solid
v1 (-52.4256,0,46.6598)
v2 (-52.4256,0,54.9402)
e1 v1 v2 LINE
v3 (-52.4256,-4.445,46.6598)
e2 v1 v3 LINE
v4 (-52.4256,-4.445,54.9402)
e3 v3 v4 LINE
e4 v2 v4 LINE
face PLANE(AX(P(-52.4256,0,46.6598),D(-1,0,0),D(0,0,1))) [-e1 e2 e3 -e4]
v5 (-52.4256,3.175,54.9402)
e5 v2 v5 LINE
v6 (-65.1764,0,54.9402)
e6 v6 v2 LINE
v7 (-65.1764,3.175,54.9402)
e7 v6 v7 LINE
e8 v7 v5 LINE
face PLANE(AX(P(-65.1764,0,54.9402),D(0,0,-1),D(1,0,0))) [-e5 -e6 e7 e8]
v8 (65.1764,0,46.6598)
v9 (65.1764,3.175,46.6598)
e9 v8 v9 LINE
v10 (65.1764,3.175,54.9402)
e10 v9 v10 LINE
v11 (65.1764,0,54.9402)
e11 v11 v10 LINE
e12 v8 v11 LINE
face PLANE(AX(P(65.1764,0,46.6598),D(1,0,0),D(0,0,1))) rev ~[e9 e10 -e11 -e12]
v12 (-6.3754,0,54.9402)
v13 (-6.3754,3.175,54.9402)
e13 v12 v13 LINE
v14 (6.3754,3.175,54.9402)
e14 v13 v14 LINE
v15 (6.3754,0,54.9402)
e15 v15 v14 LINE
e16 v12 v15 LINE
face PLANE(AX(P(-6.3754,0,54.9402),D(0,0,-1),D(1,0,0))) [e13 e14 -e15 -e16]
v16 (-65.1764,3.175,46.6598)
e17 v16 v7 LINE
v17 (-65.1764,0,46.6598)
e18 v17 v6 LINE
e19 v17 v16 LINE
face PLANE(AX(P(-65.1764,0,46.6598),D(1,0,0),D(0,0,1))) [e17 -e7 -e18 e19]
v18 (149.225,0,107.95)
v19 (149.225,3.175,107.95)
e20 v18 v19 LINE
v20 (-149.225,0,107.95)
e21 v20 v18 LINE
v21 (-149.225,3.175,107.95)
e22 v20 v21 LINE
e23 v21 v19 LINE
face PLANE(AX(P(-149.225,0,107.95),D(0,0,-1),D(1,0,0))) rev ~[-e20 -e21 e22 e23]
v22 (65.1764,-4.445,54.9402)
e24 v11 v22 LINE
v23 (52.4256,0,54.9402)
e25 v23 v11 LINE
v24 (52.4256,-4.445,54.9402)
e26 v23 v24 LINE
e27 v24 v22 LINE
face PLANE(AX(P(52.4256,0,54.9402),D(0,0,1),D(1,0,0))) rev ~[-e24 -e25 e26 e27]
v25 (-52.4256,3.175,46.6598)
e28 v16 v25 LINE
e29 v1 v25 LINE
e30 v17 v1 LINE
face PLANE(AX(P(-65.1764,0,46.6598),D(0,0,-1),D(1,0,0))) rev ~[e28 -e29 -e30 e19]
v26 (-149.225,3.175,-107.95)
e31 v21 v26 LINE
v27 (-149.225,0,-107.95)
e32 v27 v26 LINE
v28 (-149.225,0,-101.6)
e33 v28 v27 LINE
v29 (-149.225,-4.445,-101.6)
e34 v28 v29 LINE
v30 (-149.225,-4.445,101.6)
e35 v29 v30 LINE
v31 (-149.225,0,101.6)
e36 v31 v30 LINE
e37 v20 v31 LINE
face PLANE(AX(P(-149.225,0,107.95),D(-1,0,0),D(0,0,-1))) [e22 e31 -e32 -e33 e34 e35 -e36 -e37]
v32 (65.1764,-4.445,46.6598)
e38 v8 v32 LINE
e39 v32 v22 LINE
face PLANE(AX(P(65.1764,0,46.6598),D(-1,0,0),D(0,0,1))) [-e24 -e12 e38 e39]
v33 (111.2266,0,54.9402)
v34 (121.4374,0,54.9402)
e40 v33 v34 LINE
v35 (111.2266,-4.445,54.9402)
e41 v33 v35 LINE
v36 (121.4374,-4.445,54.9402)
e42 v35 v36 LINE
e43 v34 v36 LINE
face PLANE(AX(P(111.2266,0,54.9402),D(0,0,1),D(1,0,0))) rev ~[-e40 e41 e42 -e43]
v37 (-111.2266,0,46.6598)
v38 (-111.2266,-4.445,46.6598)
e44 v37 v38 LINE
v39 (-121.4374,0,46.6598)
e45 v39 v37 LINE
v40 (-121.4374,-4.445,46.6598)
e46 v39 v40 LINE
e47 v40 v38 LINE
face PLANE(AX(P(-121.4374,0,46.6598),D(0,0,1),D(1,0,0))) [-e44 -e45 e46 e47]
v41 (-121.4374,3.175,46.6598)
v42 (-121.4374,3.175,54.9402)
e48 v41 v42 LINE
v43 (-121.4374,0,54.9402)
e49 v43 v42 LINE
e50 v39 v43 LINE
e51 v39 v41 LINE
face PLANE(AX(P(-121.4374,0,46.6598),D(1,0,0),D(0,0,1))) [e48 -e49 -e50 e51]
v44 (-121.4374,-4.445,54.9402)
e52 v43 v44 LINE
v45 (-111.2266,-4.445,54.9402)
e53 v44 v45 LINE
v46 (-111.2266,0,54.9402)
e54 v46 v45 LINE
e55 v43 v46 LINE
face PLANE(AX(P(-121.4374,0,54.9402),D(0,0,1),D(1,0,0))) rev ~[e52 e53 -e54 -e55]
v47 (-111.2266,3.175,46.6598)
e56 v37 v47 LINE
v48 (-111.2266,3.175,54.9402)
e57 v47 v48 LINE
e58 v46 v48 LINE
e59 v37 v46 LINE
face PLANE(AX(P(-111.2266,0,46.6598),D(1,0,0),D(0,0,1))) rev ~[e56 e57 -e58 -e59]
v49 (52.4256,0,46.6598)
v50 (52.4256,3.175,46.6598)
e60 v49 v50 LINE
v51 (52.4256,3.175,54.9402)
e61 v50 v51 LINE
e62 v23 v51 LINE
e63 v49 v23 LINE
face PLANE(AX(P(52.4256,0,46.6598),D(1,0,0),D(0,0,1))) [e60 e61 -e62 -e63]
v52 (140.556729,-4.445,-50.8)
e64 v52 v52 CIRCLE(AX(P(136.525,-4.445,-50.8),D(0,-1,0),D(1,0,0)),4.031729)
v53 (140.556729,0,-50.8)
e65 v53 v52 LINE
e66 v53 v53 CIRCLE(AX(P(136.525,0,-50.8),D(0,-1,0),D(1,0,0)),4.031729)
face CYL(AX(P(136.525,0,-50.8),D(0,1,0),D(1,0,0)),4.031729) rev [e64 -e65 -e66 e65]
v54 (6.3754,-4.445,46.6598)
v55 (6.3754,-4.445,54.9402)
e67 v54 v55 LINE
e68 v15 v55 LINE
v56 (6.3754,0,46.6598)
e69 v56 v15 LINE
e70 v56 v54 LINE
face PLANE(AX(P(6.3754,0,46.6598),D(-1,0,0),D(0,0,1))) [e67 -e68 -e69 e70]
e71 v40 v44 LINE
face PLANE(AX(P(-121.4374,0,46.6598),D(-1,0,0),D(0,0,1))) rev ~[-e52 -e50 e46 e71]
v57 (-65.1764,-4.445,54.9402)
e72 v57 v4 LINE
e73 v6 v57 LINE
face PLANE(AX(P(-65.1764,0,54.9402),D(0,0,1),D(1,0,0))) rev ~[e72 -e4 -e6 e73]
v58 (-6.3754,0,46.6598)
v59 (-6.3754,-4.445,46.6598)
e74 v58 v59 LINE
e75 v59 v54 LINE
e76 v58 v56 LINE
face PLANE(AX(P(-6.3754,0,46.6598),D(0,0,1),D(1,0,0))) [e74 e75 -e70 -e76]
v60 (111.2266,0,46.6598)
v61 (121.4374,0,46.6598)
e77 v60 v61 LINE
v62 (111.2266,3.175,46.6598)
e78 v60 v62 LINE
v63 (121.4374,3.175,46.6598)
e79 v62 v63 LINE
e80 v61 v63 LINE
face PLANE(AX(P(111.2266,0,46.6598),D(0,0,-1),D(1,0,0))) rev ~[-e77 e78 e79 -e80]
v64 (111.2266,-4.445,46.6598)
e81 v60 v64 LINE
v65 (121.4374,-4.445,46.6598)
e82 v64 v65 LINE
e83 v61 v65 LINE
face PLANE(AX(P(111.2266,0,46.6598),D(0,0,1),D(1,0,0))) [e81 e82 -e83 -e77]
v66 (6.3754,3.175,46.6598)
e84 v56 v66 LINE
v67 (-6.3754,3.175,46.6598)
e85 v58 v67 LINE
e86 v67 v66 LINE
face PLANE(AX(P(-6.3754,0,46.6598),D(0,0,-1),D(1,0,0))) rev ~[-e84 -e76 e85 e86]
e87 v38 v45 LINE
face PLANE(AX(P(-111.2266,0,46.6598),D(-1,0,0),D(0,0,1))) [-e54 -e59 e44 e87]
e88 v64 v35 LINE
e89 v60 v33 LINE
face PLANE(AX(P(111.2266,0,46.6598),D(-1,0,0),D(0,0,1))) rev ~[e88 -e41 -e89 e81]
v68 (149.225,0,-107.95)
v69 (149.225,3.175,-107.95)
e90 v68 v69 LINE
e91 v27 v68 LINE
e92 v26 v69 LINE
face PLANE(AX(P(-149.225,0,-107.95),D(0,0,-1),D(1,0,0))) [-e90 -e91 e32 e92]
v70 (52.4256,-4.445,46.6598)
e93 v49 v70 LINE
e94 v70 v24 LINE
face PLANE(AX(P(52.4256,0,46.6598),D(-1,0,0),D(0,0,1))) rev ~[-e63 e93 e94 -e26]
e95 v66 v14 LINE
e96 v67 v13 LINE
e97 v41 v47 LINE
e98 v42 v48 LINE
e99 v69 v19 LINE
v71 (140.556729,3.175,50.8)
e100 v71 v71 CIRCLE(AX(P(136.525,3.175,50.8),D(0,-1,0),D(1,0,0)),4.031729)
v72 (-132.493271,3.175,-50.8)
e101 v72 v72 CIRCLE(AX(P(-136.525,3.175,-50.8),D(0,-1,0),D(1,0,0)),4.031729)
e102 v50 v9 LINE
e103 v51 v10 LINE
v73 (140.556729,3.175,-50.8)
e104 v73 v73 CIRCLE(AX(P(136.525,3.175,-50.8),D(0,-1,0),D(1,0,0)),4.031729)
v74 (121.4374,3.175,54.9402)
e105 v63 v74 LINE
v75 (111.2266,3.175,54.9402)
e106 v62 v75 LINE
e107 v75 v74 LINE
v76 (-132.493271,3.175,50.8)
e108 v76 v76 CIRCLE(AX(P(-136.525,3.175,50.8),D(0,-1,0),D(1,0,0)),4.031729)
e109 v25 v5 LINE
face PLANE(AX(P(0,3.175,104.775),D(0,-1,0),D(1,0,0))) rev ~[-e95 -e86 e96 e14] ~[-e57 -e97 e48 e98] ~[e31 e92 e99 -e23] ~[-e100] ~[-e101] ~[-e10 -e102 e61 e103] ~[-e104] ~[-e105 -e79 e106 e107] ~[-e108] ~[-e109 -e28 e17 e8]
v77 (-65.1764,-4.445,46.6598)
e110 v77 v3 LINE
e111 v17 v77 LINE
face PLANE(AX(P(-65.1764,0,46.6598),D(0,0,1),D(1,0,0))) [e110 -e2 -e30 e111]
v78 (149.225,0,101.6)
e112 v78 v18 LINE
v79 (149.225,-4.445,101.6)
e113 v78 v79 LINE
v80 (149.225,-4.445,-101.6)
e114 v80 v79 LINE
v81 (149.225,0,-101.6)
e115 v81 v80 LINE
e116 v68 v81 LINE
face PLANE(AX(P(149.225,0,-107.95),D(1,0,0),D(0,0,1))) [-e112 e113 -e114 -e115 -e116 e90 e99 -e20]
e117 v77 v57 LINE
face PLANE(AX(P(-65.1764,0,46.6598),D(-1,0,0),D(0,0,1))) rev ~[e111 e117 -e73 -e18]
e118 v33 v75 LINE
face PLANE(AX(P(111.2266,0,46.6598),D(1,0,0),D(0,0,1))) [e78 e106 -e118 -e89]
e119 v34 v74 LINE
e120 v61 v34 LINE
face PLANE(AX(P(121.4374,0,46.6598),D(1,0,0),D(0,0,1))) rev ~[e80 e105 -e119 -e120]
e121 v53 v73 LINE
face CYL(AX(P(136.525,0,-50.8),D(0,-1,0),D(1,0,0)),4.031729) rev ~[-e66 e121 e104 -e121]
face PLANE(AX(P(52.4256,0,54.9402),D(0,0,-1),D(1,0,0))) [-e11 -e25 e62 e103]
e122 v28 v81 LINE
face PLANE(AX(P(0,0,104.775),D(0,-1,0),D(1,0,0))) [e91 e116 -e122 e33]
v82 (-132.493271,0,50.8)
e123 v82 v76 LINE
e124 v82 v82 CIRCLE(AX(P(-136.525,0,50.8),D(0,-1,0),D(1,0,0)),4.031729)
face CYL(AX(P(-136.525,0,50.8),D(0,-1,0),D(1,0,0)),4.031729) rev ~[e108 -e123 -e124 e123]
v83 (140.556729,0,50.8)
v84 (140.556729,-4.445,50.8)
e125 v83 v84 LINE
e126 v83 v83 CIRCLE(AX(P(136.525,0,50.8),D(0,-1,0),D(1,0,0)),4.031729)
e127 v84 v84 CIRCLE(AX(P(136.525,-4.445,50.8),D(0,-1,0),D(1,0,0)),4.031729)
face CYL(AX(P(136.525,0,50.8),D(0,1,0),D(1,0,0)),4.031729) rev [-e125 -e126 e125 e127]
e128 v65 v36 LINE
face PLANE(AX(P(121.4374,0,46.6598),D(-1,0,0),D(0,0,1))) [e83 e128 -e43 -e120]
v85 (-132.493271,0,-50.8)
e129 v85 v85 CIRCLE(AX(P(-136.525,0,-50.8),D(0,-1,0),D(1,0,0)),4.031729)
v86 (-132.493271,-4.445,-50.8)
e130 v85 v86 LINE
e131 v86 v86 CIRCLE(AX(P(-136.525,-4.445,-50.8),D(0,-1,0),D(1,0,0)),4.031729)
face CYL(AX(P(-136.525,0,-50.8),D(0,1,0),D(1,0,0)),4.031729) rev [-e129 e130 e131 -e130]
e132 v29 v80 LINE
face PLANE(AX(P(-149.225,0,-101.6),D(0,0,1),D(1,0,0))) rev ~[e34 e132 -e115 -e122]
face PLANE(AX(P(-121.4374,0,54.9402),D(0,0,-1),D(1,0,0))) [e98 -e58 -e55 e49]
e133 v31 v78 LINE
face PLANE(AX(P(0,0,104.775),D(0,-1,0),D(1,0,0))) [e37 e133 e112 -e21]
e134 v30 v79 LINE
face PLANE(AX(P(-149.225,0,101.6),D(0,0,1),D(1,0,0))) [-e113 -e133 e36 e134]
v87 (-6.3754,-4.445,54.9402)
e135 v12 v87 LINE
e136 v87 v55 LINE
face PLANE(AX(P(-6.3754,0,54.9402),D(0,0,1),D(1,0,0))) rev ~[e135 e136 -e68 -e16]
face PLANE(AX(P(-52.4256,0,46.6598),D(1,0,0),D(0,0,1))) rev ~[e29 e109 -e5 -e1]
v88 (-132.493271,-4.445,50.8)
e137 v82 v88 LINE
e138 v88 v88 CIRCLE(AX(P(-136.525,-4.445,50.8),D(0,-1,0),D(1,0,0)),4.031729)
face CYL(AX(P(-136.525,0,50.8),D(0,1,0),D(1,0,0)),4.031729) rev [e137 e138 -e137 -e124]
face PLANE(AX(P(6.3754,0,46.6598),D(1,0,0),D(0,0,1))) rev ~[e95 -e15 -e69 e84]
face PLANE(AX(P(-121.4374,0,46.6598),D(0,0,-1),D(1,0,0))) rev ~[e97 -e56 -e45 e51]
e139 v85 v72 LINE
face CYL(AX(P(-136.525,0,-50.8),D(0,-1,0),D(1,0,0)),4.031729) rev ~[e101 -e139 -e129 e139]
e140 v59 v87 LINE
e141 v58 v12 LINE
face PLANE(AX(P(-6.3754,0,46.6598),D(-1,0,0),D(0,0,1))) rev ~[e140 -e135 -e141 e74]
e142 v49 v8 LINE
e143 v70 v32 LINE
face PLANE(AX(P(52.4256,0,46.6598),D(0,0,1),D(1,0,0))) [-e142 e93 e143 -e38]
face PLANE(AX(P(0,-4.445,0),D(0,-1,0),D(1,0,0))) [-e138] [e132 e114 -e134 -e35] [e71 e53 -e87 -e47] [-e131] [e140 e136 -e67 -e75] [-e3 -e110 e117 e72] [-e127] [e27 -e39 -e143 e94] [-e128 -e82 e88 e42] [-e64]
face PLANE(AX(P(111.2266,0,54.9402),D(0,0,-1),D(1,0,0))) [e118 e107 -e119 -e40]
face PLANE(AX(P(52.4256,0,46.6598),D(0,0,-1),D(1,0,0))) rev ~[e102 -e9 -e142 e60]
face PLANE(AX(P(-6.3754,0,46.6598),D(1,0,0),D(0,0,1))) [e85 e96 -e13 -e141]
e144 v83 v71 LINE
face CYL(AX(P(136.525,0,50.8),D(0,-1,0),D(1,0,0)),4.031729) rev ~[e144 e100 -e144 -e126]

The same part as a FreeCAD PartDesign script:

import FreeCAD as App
import Part
import Sketcher

V = App.Vector
Q = App.Units.Quantity


def add_polygon(sketch, points):
    """Adds a closed chain of lines whose ends are joined by coincident constraints."""
    first, n = sketch.GeometryCount, len(points)
    for a, b in zip(points, points[1:] + points[:1]):
        sketch.addGeometry(Part.LineSegment(App.Vector(*a, 0), App.Vector(*b, 0)), False)
    for i in range(n):
        sketch.addConstraint(Sketcher.Constraint("Coincident", first + i, 2, first + (i + 1) % n, 1))

doc = App.newDocument("Part")
body = doc.addObject("PartDesign::Body", "Body")

# Sketch on XZ plane
sketch1 = doc.addObject("Sketcher::SketchObject", "Sketch")
body.addObject(sketch1)
sketch1.AttachmentSupport = (doc.XZ_Plane, [""])
sketch1.MapMode = "FlatFace"
add_polygon(sketch1, [(-149.2, 101.6), (-149.2, -101.6), (149.2, -101.6), (149.2, 101.6)])  # lines 0-3
sketch1.addGeometry(Part.Circle(V(-136.5, -50.8, 0), V(0, 0, 1), 4), False)  # 4
sketch1.addGeometry(Part.Circle(V(136.5, -50.8, 0), V(0, 0, 1), 4), False)  # 5
sketch1.addGeometry(Part.Circle(V(-136.5, 50.8, 0), V(0, 0, 1), 4), False)  # 6
add_polygon(sketch1, [(-111.2, 46.7), (-121.4, 46.7), (-121.4, 54.9), (-111.2, 54.9)])  # lines 7-10
add_polygon(sketch1, [(-52.4, 46.7), (-65.2, 46.7), (-65.2, 54.9), (-52.4, 54.9)])  # lines 11-14
add_polygon(sketch1, [(6.4, 46.7), (-6.4, 46.7), (-6.4, 54.9), (6.4, 54.9)])  # lines 15-18
add_polygon(sketch1, [(65.2, 46.7), (52.4, 46.7), (52.4, 54.9), (65.2, 54.9)])  # lines 19-22
add_polygon(sketch1, [(121.4, 46.7), (111.2, 46.7), (111.2, 54.9), (121.4, 54.9)])  # lines 23-26
sketch1.addGeometry(Part.Circle(V(136.5, 50.8, 0), V(0, 0, 1), 4), False)  # 27
sketch1.addConstraint([
    Sketcher.Constraint("Vertical", 0),
    Sketcher.Constraint("Horizontal", 1),
    Sketcher.Constraint("Vertical", 2),
    Sketcher.Constraint("Horizontal", 3),
    Sketcher.Constraint("Horizontal", 7),
    Sketcher.Constraint("Vertical", 8),
    Sketcher.Constraint("Horizontal", 9),
    Sketcher.Constraint("Vertical", 10),
    Sketcher.Constraint("Horizontal", 11),
    Sketcher.Constraint("Vertical", 12),
    Sketcher.Constraint("Horizontal", 13),
    Sketcher.Constraint("Vertical", 14),
    Sketcher.Constraint("Horizontal", 15),
    Sketcher.Constraint("Vertical", 16),
    Sketcher.Constraint("Horizontal", 17),
    Sketcher.Constraint("Vertical", 18),
    Sketcher.Constraint("Horizontal", 19),
    Sketcher.Constraint("Vertical", 20),
    Sketcher.Constraint("Horizontal", 21),
    Sketcher.Constraint("Vertical", 22),
    Sketcher.Constraint("Horizontal", 23),
    Sketcher.Constraint("Vertical", 24),
    Sketcher.Constraint("Horizontal", 25),
    Sketcher.Constraint("Vertical", 26),
    Sketcher.Constraint("Equal", 4, 5),
    Sketcher.Constraint("Equal", 5, 6),
    Sketcher.Constraint("Equal", 6, 27),
    Sketcher.Constraint("Symmetric", 5, 3, 6, 3, -1, 1),
    Sketcher.Constraint("Symmetric", 4, 3, 27, 3, -1, 1),
    Sketcher.Constraint("Symmetric", 0, 2, 2, 2, -1, 1),
    Sketcher.Constraint("Symmetric", 4, 3, 5, 3, -2),
    Sketcher.Constraint("Symmetric", 14, 2, 19, 2, -2),
    Sketcher.Constraint("Symmetric", 12, 2, 21, 2, -2),
    Sketcher.Constraint("Symmetric", 10, 2, 23, 2, -2),
    Sketcher.Constraint("Symmetric", 8, 2, 25, 2, -2),
    Sketcher.Constraint("Horizontal", 10, 2, 11, 2),
    Sketcher.Constraint("Horizontal", 9, 2, 12, 2),
    Sketcher.Constraint("Horizontal", 14, 2, 15, 2),
    Sketcher.Constraint("Horizontal", 13, 2, 16, 2),
    Sketcher.Constraint("Equal", 13, 15),
    Sketcher.Constraint("DistanceY", 0, 2, 0, 1, Q("8 in")),
    Sketcher.Constraint("DistanceY", 4, 3, -1, 1, Q("2 in")),
    Sketcher.Constraint("DistanceX", 1, 1, 1, 2, Q("11.75 in")),
    Sketcher.Constraint("DistanceX", 0, 2, 4, 3, Q("0.5 in")),
    Sketcher.Constraint("DistanceX", 7, 2, 7, 1, Q("0.402 in")),
    Sketcher.Constraint("DistanceX", 11, 2, 11, 1, Q("0.502 in")),
    Sketcher.Constraint("DistanceY", 8, 1, 8, 2, Q("0.326 in")),
    Sketcher.Constraint("Diameter", 4, 8.063458),
    Sketcher.Constraint("DistanceX", 7, 2, -1, 1, Q("4.781 in")),
    Sketcher.Constraint("DistanceY", -1, 1, 7, 2, Q("1.837 in")),
    Sketcher.Constraint("DistanceX", 11, 2, -1, 1, Q("2.566 in")),
    Sketcher.Constraint("DistanceX", 15, 2, -1, 1, Q("0.251 in")),
])
pad1 = doc.addObject("PartDesign::Pad", "Pad")
body.addObject(pad1)
pad1.Profile = sketch1
pad1.Length = Q("0.175 in")

# Sketch on XZ plane
sketch2 = doc.addObject("Sketcher::SketchObject", "Sketch001")
body.addObject(sketch2)
sketch2.AttachmentSupport = (doc.XZ_Plane, [""])
sketch2.MapMode = "FlatFace"
add_polygon(sketch2, [(-149.2, 108), (-149.2, -108), (149.2, -108), (149.2, 108)])  # lines 0-3
sketch2.addGeometry(Part.Circle(V(-136.5, -50.8, 0), V(0, 0, 1), 4), False)  # 4
sketch2.addGeometry(Part.Circle(V(136.5, -50.8, 0), V(0, 0, 1), 4), False)  # 5
sketch2.addGeometry(Part.Circle(V(-136.5, 50.8, 0), V(0, 0, 1), 4), False)  # 6
add_polygon(sketch2, [(-111.2, 46.7), (-121.4, 46.7), (-121.4, 54.9), (-111.2, 54.9)])  # lines 7-10
add_polygon(sketch2, [(-52.4, 46.7), (-65.2, 46.7), (-65.2, 54.9), (-52.4, 54.9)])  # lines 11-14
add_polygon(sketch2, [(6.4, 46.7), (-6.4, 46.7), (-6.4, 54.9), (6.4, 54.9)])  # lines 15-18
add_polygon(sketch2, [(65.2, 46.7), (52.4, 46.7), (52.4, 54.9), (65.2, 54.9)])  # lines 19-22
add_polygon(sketch2, [(121.4, 46.7), (111.2, 46.7), (111.2, 54.9), (121.4, 54.9)])  # lines 23-26
sketch2.addGeometry(Part.Circle(V(136.5, 50.8, 0), V(0, 0, 1), 4), False)  # 27
sketch2.addConstraint([
    Sketcher.Constraint("Vertical", 0),
    Sketcher.Constraint("Horizontal", 1),
    Sketcher.Constraint("Vertical", 2),
    Sketcher.Constraint("Horizontal", 3),
    Sketcher.Constraint("Horizontal", 7),
    Sketcher.Constraint("Vertical", 8),
    Sketcher.Constraint("Horizontal", 9),
    Sketcher.Constraint("Vertical", 10),
    Sketcher.Constraint("Horizontal", 11),
    Sketcher.Constraint("Vertical", 12),
    Sketcher.Constraint("Horizontal", 13),
    Sketcher.Constraint("Vertical", 14),
    Sketcher.Constraint("Horizontal", 15),
    Sketcher.Constraint("Vertical", 16),
    Sketcher.Constraint("Horizontal", 17),
    Sketcher.Constraint("Vertical", 18),
    Sketcher.Constraint("Horizontal", 19),
    Sketcher.Constraint("Vertical", 20),
    Sketcher.Constraint("Horizontal", 21),
    Sketcher.Constraint("Vertical", 22),
    Sketcher.Constraint("Horizontal", 23),
    Sketcher.Constraint("Vertical", 24),
    Sketcher.Constraint("Horizontal", 25),
    Sketcher.Constraint("Vertical", 26),
    Sketcher.Constraint("Equal", 4, 5),
    Sketcher.Constraint("Equal", 5, 6),
    Sketcher.Constraint("Equal", 6, 27),
    Sketcher.Constraint("Symmetric", 5, 3, 6, 3, -1, 1),
    Sketcher.Constraint("Symmetric", 4, 3, 27, 3, -1, 1),
    Sketcher.Constraint("Symmetric", 0, 2, 2, 2, -1, 1),
    Sketcher.Constraint("Symmetric", 4, 3, 5, 3, -2),
    Sketcher.Constraint("Symmetric", 14, 2, 19, 2, -2),
    Sketcher.Constraint("Symmetric", 12, 2, 21, 2, -2),
    Sketcher.Constraint("Symmetric", 10, 2, 23, 2, -2),
    Sketcher.Constraint("Symmetric", 8, 2, 25, 2, -2),
    Sketcher.Constraint("Horizontal", 10, 2, 11, 2),
    Sketcher.Constraint("Horizontal", 9, 2, 12, 2),
    Sketcher.Constraint("Horizontal", 14, 2, 15, 2),
    Sketcher.Constraint("Horizontal", 13, 2, 16, 2),
    Sketcher.Constraint("Equal", 13, 15),
    Sketcher.Constraint("DistanceY", 0, 2, 0, 1, Q("8.5 in")),
    Sketcher.Constraint("DistanceY", 4, 3, -1, 1, Q("2 in")),
    Sketcher.Constraint("DistanceX", 1, 1, 1, 2, Q("11.75 in")),
    Sketcher.Constraint("DistanceX", 0, 2, 4, 3, Q("0.5 in")),
    Sketcher.Constraint("DistanceX", 7, 2, 7, 1, Q("0.402 in")),
    Sketcher.Constraint("DistanceX", 11, 2, 11, 1, Q("0.502 in")),
    Sketcher.Constraint("DistanceY", 8, 1, 8, 2, Q("0.326 in")),
    Sketcher.Constraint("Diameter", 4, 8.063458),
    Sketcher.Constraint("DistanceX", 7, 2, -1, 1, Q("4.781 in")),
    Sketcher.Constraint("DistanceY", -1, 1, 7, 2, Q("1.837 in")),
    Sketcher.Constraint("DistanceX", 11, 2, -1, 1, Q("2.566 in")),
    Sketcher.Constraint("DistanceX", 15, 2, -1, 1, Q("0.251 in")),
])
pad2 = doc.addObject("PartDesign::Pad", "Pad001")
body.addObject(pad2)
pad2.Profile = sketch2
pad2.Length = Q("0.125 in")
pad2.Reversed = True

doc.recompute()
